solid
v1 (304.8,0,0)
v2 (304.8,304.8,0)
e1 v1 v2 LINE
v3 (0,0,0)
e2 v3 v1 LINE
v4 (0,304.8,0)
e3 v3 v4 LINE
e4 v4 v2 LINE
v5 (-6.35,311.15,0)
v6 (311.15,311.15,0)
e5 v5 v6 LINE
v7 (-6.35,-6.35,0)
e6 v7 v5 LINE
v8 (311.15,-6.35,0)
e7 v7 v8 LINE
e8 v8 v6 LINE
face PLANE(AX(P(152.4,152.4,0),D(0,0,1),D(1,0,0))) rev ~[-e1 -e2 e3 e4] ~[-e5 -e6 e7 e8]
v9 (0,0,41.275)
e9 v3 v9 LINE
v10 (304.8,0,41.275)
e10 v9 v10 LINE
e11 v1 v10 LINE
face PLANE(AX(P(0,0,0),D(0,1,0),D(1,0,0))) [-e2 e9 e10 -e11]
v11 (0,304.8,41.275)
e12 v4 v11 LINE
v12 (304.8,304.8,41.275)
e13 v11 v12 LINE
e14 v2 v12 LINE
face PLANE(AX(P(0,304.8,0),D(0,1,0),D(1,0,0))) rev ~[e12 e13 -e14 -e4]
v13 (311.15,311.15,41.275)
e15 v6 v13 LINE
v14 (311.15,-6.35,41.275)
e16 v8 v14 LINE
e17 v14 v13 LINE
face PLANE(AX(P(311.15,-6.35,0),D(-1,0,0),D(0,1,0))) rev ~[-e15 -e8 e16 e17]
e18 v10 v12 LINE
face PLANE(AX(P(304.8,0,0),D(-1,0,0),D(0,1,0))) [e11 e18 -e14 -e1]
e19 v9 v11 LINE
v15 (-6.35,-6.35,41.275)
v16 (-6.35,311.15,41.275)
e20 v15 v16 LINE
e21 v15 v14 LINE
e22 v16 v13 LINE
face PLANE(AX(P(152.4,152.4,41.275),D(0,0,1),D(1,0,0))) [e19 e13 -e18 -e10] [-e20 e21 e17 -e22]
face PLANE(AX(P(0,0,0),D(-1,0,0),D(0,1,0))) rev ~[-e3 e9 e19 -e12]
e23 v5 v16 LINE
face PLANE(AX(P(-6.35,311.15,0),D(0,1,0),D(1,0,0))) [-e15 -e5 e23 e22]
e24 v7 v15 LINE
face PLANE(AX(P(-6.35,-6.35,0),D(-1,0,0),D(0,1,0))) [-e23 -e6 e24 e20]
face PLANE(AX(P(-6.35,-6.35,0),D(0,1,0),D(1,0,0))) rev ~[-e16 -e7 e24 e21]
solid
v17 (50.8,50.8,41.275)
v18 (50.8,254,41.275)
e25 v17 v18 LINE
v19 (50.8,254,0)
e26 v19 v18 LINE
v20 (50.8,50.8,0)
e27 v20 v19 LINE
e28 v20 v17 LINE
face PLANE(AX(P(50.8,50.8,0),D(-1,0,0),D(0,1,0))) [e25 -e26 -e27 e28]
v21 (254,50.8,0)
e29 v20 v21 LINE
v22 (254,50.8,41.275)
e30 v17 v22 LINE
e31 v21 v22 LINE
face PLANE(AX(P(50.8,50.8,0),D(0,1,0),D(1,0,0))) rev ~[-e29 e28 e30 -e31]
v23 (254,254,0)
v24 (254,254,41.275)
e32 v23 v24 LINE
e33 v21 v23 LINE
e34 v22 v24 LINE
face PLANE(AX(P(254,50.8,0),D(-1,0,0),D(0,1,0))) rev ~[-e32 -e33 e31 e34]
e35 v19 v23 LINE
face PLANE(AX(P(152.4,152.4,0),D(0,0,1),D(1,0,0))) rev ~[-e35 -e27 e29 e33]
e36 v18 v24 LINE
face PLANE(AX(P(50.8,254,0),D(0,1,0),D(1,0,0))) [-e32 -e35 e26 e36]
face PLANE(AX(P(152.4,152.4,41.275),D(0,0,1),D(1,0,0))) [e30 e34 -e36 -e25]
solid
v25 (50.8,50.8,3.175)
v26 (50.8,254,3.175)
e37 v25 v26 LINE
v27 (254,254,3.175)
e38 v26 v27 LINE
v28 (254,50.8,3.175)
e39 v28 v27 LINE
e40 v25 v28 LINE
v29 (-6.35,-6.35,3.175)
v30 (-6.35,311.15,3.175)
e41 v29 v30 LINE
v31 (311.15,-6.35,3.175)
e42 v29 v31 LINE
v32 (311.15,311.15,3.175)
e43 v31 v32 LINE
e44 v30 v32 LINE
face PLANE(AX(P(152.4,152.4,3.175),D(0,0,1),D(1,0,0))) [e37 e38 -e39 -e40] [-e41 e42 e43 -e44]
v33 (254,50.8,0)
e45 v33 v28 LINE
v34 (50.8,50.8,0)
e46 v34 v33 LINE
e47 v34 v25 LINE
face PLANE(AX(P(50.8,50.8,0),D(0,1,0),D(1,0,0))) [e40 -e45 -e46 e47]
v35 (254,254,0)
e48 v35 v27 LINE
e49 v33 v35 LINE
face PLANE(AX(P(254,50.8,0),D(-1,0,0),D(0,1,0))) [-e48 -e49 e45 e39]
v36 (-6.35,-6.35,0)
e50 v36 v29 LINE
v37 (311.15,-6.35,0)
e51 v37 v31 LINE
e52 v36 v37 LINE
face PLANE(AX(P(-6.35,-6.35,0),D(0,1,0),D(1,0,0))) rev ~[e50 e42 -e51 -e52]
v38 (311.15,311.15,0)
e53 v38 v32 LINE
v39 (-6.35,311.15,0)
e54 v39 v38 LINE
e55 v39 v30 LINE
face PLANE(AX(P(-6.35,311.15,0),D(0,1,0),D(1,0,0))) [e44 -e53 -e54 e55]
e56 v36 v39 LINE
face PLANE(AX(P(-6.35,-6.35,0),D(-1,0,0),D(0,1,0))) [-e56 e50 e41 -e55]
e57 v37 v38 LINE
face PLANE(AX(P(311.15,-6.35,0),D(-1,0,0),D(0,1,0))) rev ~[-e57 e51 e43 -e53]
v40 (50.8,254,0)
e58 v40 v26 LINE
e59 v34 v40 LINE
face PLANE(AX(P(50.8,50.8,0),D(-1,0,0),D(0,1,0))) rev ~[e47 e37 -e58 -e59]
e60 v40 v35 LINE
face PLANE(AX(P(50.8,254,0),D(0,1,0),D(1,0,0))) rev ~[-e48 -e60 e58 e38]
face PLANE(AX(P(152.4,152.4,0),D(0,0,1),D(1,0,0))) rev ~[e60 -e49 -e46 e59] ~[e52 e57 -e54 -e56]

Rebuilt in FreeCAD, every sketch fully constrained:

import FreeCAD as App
import Part
import Sketcher
from FreeCAD import Vector
Q = App.Units.Quantity

doc = App.newDocument("Part")
body = doc.addObject("PartDesign::Body", "Body")

# Sketch on XY plane
sketch1 = body.newObject("Sketcher::SketchObject", "Sketch")
sketch1.AttachmentSupport = (doc.getObject("XY_Plane"), [""])
sketch1.MapMode = "FlatFace"
sketch1.addGeometry(Part.LineSegment(Vector(51, 254, 0), Vector(51, 51, 0)), False)
sketch1.addGeometry(Part.LineSegment(Vector(51, 51, 0), Vector(254, 51, 0)), False)
sketch1.addGeometry(Part.LineSegment(Vector(254, 51, 0), Vector(254, 254, 0)), False)
sketch1.addGeometry(Part.LineSegment(Vector(254, 254, 0), Vector(51, 254, 0)), False)
sketch1.addConstraint(Sketcher.Constraint("Coincident", 0, 2, 1, 1))
sketch1.addConstraint(Sketcher.Constraint("Coincident", 1, 2, 2, 1))
sketch1.addConstraint(Sketcher.Constraint("Coincident", 2, 2, 3, 1))
sketch1.addConstraint(Sketcher.Constraint("Coincident", 3, 2, 0, 1))
sketch1.addConstraint(Sketcher.Constraint("Vertical", 0))
sketch1.addConstraint(Sketcher.Constraint("Horizontal", 1))
sketch1.addConstraint(Sketcher.Constraint("Vertical", 2))
sketch1.addConstraint(Sketcher.Constraint("Horizontal", 3))
sketch1.addConstraint(Sketcher.Constraint("Equal", 3, 0))
sketch1.addConstraint(Sketcher.Constraint("DistanceX", 1, 1, 1, 2, Q("8 in")))
sketch1.addConstraint(Sketcher.Constraint("DistanceX", -1, 1, 0, 2, Q("2 in")))
sketch1.addConstraint(Sketcher.Constraint("DistanceY", -1, 1, 0, 2, Q("2 in")))
pad1 = body.newObject("PartDesign::Pad", "Pad")
pad1.Profile = sketch1
pad1.Length = Q("1.625 in")
body2 = doc.addObject("PartDesign::Body", "Body001")

# Sketch on XY plane
sketch2 = body2.newObject("Sketcher::SketchObject", "Sketch001")
sketch2.AttachmentSupport = (doc.getObject("XY_Plane001"), [""])
sketch2.MapMode = "FlatFace"
sketch2.addGeometry(Part.LineSegment(Vector(-6, 311, 0), Vector(-6, -6, 0)), False)
sketch2.addGeometry(Part.LineSegment(Vector(-6, -6, 0), Vector(311, -6, 0)), False)
sketch2.addGeometry(Part.LineSegment(Vector(311, -6, 0), Vector(311, 311, 0)), False)
sketch2.addGeometry(Part.LineSegment(Vector(311, 311, 0), Vector(-6, 311, 0)), False)
sketch2.addGeometry(Part.LineSegment(Vector(305, 0, 0), Vector(0, 0, 0)), False)
sketch2.addGeometry(Part.LineSegment(Vector(0, 0, 0), Vector(0, 305, 0)), False)
sketch2.addGeometry(Part.LineSegment(Vector(0, 305, 0), Vector(305, 305, 0)), False)
sketch2.addGeometry(Part.LineSegment(Vector(305, 305, 0), Vector(305, 0, 0)), False)
sketch2.addConstraint(Sketcher.Constraint("Coincident", 0, 2, 1, 1))
sketch2.addConstraint(Sketcher.Constraint("Coincident", 1, 2, 2, 1))
sketch2.addConstraint(Sketcher.Constraint("Coincident", 2, 2, 3, 1))
sketch2.addConstraint(Sketcher.Constraint("Coincident", 3, 2, 0, 1))
sketch2.addConstraint(Sketcher.Constraint("Coincident", 4, 2, 5, 1))
sketch2.addConstraint(Sketcher.Constraint("Coincident", 5, 2, 6, 1))
sketch2.addConstraint(Sketcher.Constraint("Coincident", 6, 2, 7, 1))
sketch2.addConstraint(Sketcher.Constraint("Coincident", 7, 2, 4, 1))
sketch2.addConstraint(Sketcher.Constraint("Vertical", 0))
sketch2.addConstraint(Sketcher.Constraint("Horizontal", 1))
sketch2.addConstraint(Sketcher.Constraint("Vertical", 2))
sketch2.addConstraint(Sketcher.Constraint("Horizontal", 3))
sketch2.addConstraint(Sketcher.Constraint("Horizontal", 4))
sketch2.addConstraint(Sketcher.Constraint("Vertical", 5))
sketch2.addConstraint(Sketcher.Constraint("Horizontal", 6))
sketch2.addConstraint(Sketcher.Constraint("Vertical", 7))
sketch2.addConstraint(Sketcher.Constraint("Coincident", 4, 2, -1, 1))
sketch2.addConstraint(Sketcher.Constraint("Equal", 3, 0))
sketch2.addConstraint(Sketcher.Constraint("Equal", 6, 5))
sketch2.addConstraint(Sketcher.Constraint("DistanceX", 4, 2, 4, 1, Q("12 in")))
sketch2.addConstraint(Sketcher.Constraint("DistanceX", 1, 1, 1, 2, Q("12.5 in")))
sketch2.addConstraint(Sketcher.Constraint("DistanceX", 0, 2, -1, 1, Q("0.25 in")))
sketch2.addConstraint(Sketcher.Constraint("DistanceY", 0, 2, -1, 1, Q("0.25 in")))
pad2 = body2.newObject("PartDesign::Pad", "Pad001")
pad2.Profile = sketch2
pad2.Length = Q("1.625 in")
body3 = doc.addObject("PartDesign::Body", "Body002")

# Sketch on XY plane
sketch3 = body3.newObject("Sketcher::SketchObject", "Sketch002")
sketch3.AttachmentSupport = (doc.getObject("XY_Plane002"), [""])
sketch3.MapMode = "FlatFace"
sketch3.addGeometry(Part.LineSegment(Vector(-6, 311, 0), Vector(-6, -6, 0)), False)
sketch3.addGeometry(Part.LineSegment(Vector(-6, -6, 0), Vector(311, -6, 0)), False)
sketch3.addGeometry(Part.LineSegment(Vector(311, -6, 0), Vector(311, 311, 0)), False)
sketch3.addGeometry(Part.LineSegment(Vector(311, 311, 0), Vector(-6, 311, 0)), False)
sketch3.addGeometry(Part.LineSegment(Vector(254, 51, 0), Vector(51, 51, 0)), False)
sketch3.addGeometry(Part.LineSegment(Vector(51, 51, 0), Vector(51, 254, 0)), False)
sketch3.addGeometry(Part.LineSegment(Vector(51, 254, 0), Vector(254, 254, 0)), False)
sketch3.addGeometry(Part.LineSegment(Vector(254, 254, 0), Vector(254, 51, 0)), False)
sketch3.addConstraint(Sketcher.Constraint("Coincident", 0, 2, 1, 1))
sketch3.addConstraint(Sketcher.Constraint("Coincident", 1, 2, 2, 1))
sketch3.addConstraint(Sketcher.Constraint("Coincident", 2, 2, 3, 1))
sketch3.addConstraint(Sketcher.Constraint("Coincident", 3, 2, 0, 1))
sketch3.addConstraint(Sketcher.Constraint("Coincident", 4, 2, 5, 1))
sketch3.addConstraint(Sketcher.Constraint("Coincident", 5, 2, 6, 1))
sketch3.addConstraint(Sketcher.Constraint("Coincident", 6, 2, 7, 1))
sketch3.addConstraint(Sketcher.Constraint("Coincident", 7, 2, 4, 1))
sketch3.addConstraint(Sketcher.Constraint("Vertical", 0))
sketch3.addConstraint(Sketcher.Constraint("Horizontal", 1))
sketch3.addConstraint(Sketcher.Constraint("Vertical", 2))
sketch3.addConstraint(Sketcher.Constraint("Horizontal", 3))
sketch3.addConstraint(Sketcher.Constraint("Horizontal", 4))
sketch3.addConstraint(Sketcher.Constraint("Vertical", 5))
sketch3.addConstraint(Sketcher.Constraint("Horizontal", 6))
sketch3.addConstraint(Sketcher.Constraint("Vertical", 7))
sketch3.addConstraint(Sketcher.Constraint("Equal", 3, 0))
sketch3.addConstraint(Sketcher.Constraint("Equal", 6, 5))
sketch3.addConstraint(Sketcher.Constraint("DistanceX", 4, 2, 4, 1, Q("8 in")))
sketch3.addConstraint(Sketcher.Constraint("DistanceX", 1, 1, 1, 2, Q("12.5 in")))
sketch3.addConstraint(Sketcher.Constraint("DistanceX", -1, 1, 4, 2, Q("2 in")))
sketch3.addConstraint(Sketcher.Constraint("DistanceY", -1, 1, 4, 2, Q("2 in")))
sketch3.addConstraint(Sketcher.Constraint("DistanceX", 0, 2, -1, 1, Q("0.25 in")))
sketch3.addConstraint(Sketcher.Constraint("DistanceY", 0, 2, -1, 1, Q("0.25 in")))
pad3 = body3.newObject("PartDesign::Pad", "Pad002")
pad3.Profile = sketch3
pad3.Length = Q("0.125 in")

doc.recompute()
